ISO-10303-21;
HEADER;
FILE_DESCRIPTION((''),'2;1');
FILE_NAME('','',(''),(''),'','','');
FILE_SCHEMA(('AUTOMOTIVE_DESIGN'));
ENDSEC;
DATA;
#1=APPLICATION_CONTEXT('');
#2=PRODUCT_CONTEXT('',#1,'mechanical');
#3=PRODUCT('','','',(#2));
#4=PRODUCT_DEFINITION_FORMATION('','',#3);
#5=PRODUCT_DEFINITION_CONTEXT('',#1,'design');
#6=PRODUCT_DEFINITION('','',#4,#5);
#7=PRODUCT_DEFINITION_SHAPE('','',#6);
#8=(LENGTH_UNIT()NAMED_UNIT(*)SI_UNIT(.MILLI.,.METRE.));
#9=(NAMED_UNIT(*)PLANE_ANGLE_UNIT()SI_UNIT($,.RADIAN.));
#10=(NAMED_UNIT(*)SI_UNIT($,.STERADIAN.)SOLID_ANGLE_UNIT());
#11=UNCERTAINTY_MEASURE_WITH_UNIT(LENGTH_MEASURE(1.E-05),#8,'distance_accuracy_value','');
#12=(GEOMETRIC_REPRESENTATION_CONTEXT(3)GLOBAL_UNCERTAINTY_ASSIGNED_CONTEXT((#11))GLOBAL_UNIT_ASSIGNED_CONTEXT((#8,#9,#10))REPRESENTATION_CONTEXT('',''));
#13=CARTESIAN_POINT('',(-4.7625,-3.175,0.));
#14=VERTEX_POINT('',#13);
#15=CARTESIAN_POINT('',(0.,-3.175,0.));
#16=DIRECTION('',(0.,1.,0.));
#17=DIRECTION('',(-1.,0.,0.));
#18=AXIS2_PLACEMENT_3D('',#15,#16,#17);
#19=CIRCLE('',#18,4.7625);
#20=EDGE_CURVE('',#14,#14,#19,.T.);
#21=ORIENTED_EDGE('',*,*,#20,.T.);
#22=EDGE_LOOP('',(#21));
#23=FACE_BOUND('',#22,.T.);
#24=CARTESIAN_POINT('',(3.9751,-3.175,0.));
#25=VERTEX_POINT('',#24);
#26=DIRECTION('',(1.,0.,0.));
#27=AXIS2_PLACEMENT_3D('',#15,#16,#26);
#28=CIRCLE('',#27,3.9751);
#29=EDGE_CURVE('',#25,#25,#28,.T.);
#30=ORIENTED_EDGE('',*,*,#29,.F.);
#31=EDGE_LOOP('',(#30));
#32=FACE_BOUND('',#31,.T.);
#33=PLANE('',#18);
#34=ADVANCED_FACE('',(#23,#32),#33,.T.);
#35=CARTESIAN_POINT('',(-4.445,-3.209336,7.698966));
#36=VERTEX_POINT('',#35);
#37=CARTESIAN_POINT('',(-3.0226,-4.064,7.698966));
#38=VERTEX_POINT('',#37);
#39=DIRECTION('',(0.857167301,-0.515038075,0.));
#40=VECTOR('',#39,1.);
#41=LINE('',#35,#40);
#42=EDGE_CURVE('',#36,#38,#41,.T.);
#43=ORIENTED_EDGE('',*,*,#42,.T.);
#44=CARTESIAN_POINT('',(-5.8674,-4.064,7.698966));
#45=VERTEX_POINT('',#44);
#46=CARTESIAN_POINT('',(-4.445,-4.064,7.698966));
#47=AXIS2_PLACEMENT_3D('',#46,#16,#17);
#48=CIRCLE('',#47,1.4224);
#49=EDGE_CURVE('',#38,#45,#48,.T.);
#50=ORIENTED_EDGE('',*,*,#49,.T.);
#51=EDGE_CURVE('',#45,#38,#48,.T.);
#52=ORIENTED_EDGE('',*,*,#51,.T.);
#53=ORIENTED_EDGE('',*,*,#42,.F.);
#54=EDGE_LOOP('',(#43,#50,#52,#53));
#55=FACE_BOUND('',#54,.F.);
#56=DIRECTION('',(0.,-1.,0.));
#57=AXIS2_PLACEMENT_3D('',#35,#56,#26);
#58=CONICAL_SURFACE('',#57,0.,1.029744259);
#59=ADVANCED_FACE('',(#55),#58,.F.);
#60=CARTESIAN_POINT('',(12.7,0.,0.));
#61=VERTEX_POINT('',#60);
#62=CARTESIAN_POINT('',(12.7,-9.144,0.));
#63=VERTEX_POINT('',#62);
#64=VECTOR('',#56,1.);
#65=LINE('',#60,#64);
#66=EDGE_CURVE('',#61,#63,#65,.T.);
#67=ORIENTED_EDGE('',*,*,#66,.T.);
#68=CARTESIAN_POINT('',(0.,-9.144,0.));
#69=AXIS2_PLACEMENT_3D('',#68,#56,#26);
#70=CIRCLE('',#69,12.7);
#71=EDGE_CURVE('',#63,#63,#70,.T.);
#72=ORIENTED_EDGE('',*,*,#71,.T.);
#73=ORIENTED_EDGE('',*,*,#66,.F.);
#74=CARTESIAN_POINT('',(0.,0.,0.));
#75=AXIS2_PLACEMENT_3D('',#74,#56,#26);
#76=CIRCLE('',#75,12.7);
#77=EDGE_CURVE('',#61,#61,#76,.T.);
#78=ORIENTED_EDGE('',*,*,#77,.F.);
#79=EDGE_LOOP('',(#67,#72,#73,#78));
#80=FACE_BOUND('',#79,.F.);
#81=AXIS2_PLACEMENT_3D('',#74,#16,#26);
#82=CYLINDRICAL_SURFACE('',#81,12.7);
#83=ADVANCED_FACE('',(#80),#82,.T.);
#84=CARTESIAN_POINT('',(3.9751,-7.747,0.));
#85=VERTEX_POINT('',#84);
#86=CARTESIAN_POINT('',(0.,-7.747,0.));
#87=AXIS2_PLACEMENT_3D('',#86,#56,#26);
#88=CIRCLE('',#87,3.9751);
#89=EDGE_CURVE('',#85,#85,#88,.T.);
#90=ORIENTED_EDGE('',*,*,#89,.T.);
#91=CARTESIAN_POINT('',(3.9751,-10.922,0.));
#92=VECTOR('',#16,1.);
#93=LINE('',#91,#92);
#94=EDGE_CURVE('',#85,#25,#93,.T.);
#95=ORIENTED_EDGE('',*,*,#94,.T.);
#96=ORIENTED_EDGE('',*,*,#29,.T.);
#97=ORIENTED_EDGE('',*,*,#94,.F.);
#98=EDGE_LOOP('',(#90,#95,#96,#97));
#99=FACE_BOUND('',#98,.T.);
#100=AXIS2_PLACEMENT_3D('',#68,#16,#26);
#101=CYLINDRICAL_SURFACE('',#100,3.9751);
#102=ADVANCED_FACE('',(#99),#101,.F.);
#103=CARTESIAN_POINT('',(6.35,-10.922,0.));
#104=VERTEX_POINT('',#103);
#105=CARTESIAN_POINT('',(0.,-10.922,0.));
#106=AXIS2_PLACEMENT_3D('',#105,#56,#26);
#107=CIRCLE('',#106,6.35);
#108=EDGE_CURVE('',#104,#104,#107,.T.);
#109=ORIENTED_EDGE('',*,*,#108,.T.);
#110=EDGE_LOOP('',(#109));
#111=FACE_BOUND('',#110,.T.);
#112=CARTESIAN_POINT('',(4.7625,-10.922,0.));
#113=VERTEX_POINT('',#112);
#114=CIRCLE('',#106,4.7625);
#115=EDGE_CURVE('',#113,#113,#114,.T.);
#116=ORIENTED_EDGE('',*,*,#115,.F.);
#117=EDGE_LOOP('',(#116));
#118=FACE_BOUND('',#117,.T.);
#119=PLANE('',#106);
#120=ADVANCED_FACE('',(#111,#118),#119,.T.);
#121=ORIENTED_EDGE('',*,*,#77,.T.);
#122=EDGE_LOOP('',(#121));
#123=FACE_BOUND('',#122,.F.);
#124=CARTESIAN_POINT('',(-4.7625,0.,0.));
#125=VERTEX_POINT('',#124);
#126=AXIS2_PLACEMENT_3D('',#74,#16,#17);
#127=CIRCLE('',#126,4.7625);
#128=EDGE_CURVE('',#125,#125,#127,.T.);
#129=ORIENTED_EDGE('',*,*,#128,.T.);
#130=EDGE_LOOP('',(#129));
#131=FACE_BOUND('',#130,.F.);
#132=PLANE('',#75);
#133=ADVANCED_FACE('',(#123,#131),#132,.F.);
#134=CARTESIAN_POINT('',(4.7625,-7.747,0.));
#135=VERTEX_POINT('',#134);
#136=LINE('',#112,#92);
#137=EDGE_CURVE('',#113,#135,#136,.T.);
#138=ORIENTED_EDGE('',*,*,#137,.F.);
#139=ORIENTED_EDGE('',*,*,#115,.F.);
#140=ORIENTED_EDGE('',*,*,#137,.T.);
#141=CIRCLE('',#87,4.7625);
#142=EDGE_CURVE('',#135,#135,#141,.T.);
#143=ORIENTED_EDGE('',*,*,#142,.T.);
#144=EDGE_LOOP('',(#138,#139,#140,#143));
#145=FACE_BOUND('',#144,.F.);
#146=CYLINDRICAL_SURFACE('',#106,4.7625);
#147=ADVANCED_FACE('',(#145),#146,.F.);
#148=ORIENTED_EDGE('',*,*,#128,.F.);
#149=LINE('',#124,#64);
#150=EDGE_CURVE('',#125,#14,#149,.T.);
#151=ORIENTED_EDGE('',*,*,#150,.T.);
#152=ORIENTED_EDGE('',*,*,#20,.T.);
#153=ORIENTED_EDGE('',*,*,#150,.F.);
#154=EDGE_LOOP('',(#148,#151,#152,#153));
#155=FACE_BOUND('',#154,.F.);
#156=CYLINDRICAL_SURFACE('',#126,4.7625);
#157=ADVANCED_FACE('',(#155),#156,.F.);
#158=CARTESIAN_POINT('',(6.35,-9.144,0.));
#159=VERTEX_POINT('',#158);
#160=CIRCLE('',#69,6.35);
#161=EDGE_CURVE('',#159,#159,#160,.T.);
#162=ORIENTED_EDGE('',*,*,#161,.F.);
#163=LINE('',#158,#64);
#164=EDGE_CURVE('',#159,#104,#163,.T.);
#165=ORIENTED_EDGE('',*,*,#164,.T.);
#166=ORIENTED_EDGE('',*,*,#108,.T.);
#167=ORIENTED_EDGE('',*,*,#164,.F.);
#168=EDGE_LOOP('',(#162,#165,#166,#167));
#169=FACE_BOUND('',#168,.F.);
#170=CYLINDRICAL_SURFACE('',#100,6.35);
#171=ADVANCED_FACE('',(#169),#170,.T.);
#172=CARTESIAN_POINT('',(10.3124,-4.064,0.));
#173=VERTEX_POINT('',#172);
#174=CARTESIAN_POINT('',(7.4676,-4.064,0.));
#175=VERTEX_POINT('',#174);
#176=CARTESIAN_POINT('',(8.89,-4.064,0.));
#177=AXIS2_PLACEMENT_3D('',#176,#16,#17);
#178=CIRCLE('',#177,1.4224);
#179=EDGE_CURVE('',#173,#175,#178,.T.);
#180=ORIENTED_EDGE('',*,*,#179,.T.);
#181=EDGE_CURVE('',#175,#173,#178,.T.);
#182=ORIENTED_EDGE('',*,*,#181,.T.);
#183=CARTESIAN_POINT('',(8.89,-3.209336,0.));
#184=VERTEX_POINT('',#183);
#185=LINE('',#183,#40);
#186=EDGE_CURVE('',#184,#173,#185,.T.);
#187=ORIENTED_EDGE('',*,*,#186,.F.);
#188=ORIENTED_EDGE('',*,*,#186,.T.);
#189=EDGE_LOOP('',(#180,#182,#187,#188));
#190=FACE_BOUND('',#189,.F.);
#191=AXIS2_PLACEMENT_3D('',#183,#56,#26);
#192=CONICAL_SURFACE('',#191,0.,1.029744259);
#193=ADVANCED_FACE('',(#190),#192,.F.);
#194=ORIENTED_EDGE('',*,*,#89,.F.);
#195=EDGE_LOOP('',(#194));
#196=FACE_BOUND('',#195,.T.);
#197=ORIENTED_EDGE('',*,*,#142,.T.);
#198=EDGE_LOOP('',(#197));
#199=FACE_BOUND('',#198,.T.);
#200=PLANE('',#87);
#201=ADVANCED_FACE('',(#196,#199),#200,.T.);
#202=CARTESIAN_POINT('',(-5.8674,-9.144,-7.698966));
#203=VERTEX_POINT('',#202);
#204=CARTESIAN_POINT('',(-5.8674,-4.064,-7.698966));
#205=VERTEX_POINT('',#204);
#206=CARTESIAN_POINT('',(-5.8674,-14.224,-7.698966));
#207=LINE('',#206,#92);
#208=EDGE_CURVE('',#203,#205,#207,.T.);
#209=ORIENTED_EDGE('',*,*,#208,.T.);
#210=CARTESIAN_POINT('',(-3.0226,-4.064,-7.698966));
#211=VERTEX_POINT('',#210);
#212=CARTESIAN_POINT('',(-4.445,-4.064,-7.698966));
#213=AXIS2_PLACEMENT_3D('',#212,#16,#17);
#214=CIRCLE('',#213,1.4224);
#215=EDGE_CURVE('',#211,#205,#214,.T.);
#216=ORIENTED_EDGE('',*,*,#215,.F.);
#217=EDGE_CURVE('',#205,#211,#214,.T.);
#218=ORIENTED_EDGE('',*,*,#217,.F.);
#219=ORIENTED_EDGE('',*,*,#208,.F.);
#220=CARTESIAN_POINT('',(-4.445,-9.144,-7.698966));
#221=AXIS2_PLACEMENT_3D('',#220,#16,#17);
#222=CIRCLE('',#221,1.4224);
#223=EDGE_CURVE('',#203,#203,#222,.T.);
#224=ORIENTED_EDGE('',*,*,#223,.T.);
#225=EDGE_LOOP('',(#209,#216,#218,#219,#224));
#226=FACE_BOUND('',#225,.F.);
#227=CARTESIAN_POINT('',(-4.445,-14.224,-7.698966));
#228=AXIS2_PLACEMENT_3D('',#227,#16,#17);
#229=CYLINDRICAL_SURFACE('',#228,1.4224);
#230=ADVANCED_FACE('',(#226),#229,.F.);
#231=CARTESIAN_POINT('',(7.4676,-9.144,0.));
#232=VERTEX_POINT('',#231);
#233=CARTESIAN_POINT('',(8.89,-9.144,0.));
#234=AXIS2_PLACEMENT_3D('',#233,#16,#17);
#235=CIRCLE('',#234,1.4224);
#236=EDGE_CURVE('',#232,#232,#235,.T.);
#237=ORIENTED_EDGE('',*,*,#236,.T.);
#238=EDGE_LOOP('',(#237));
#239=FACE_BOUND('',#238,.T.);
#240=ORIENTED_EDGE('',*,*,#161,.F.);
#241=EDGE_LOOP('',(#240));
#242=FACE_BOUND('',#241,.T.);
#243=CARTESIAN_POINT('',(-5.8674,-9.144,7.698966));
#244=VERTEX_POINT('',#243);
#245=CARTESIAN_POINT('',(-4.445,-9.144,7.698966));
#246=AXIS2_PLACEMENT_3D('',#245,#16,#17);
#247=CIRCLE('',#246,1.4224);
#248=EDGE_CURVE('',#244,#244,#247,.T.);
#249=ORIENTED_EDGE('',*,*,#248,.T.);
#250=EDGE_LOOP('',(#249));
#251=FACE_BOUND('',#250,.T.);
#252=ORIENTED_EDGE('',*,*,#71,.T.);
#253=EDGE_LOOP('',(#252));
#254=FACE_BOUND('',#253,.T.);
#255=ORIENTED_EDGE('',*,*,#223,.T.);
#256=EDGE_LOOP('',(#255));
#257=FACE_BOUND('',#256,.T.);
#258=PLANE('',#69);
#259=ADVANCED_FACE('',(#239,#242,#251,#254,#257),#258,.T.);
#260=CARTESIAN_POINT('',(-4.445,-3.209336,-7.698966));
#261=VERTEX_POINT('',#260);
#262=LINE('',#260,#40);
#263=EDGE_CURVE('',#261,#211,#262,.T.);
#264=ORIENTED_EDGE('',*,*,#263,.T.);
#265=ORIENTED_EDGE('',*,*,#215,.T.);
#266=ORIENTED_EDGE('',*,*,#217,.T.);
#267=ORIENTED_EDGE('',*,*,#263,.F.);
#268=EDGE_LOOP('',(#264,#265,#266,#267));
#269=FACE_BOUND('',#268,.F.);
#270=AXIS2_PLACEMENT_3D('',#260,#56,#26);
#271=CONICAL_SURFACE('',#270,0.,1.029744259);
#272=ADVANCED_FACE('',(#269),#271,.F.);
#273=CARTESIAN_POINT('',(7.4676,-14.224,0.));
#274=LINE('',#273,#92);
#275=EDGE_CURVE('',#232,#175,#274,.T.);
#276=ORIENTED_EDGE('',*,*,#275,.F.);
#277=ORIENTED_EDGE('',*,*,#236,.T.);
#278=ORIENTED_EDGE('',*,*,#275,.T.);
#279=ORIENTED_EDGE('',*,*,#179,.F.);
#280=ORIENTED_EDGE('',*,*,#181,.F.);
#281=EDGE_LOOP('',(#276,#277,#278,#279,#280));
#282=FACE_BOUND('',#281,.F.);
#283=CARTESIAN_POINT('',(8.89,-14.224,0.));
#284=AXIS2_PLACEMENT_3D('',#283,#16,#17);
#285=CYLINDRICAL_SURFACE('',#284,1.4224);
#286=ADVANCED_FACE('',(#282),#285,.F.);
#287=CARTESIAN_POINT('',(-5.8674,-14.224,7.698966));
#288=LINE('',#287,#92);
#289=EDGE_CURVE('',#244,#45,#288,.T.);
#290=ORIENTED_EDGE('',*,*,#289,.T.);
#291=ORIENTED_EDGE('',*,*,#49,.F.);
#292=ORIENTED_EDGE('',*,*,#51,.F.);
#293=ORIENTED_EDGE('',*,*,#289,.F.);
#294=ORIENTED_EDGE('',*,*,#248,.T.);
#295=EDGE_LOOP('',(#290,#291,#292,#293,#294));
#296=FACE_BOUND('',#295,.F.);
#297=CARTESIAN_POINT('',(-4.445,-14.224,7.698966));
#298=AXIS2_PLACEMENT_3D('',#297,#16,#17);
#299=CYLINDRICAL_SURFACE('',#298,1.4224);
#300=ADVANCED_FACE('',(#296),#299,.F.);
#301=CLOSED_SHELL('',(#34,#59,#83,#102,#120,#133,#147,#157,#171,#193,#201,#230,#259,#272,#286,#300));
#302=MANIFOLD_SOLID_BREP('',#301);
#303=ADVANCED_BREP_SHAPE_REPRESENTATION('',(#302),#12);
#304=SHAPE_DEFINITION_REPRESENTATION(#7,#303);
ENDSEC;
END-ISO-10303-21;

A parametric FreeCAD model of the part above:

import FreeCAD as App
import Part
import Sketcher

V = App.Vector
Q = App.Units.Quantity

doc = App.newDocument("Part")
body = doc.addObject("PartDesign::Body", "Body")

sketch1 = body.newObject("Sketcher::SketchObject", "Sketch")
sketch1.AttachmentSupport = (doc.getObject("XZ_Plane"), [""])
sketch1.MapMode = "FlatFace"
sketch1.addGeometry([
    Part.Circle(V(0, 0, 0), V(0, 0, 1), 12.7),
    Part.Circle(V(0, 0, 0), V(0, 0, 1), 4),
], False)
sketch1.addConstraint([
    Sketcher.Constraint("Coincident", 0, 3, -1, 1),
    Sketcher.Constraint("Coincident", 1, 3, -1, 1),
    Sketcher.Constraint("Diameter", 0, Q("1 in")),
    Sketcher.Constraint("Diameter", 1, Q("0.313 in")),
])
pad1 = body.newObject("PartDesign::Pad", "Pad")
pad1.Profile = sketch1
pad1.Length = Q("0.36 in")

sketch2 = body.newObject("Sketcher::SketchObject", "Sketch001")
sketch2.AttachmentSupport = (doc.getObject("XZ_Plane"), [""])
sketch2.MapMode = "FlatFace"
sketch2.AttachmentOffset = App.Placement(V(0, 0, 0.36 * 25.4), App.Rotation())
sketch2.addGeometry([
    Part.Circle(V(0, 0, 0), V(0, 0, 1), 6.3),
    Part.Circle(V(0, 0, 0), V(0, 0, 1), 4),
], False)
sketch2.addConstraint([
    Sketcher.Constraint("Coincident", 0, 3, -1, 1),
    Sketcher.Constraint("Coincident", 1, 3, -1, 1),
    Sketcher.Constraint("Diameter", 0, Q("0.5 in")),
    Sketcher.Constraint("Diameter", 1, Q("0.313 in")),
])
pad2 = body.newObject("PartDesign::Pad", "Pad001")
pad2.Profile = sketch2
pad2.Length = Q("0.07 in")

sketch3 = body.newObject("Sketcher::SketchObject", "Sketch002")
sketch3.AttachmentSupport = (doc.getObject("XZ_Plane"), [""])
sketch3.MapMode = "FlatFace"
sketch3.AttachmentOffset = App.Placement(V(0, 0, 0.43 * 25.4), App.Rotation())
sketch3.addGeometry([
    Part.Circle(V(0, 0, 0), V(0, 0, 1), 4.8),
    Part.Circle(V(0, 0, 0), V(0, 0, 1), 4),
], False)
sketch3.addConstraint([
    Sketcher.Constraint("Coincident", 0, 3, -1, 1),
    Sketcher.Constraint("Coincident", 1, 3, -1, 1),
    Sketcher.Constraint("Diameter", 0, Q("0.375 in")),
    Sketcher.Constraint("Diameter", 1, Q("0.313 in")),
])
pocket1 = body.newObject("PartDesign::Pocket", "Pocket")
pocket1.Profile = sketch3
pocket1.Length = Q("0.125 in")

sketch4 = body.newObject("Sketcher::SketchObject", "Sketch003")
sketch4.AttachmentSupport = (doc.getObject("XZ_Plane"), [""])
sketch4.MapMode = "FlatFace"
sketch4.addGeometry([
    Part.Circle(V(0, 0, 0), V(0, 0, 1), 4.8),
    Part.Circle(V(0, 0, 0), V(0, 0, 1), 4),
], False)
sketch4.addConstraint([
    Sketcher.Constraint("Coincident", 0, 3, -1, 1),
    Sketcher.Constraint("Coincident", 1, 3, -1, 1),
    Sketcher.Constraint("Diameter", 0, Q("0.375 in")),
    Sketcher.Constraint("Diameter", 1, Q("0.313 in")),
])
pocket2 = body.newObject("PartDesign::Pocket", "Pocket001")
pocket2.Profile = sketch4
pocket2.Length = Q("0.125 in")
pocket2.Reversed = True

sketch5 = body.newObject("Sketcher::SketchObject", "Sketch004")
sketch5.AttachmentSupport = (doc.getObject("XZ_Plane"), [""])
sketch5.MapMode = "FlatFace"
sketch5.AttachmentOffset = App.Placement(V(0, 0, 0.36 * 25.4), App.Rotation())
sketch5.addGeometry([
    Part.Circle(V(8.9, 0, 0), V(0, 0, 1), 1.4),
    Part.Circle(V(-4.4, 7.7, 0), V(0, 0, 1), 1.4),
    Part.Circle(V(-4.4, -7.7, 0), V(0, 0, 1), 1.4),
], False)
sketch5.addConstraint([
    Sketcher.Constraint("Equal", 0, 1),
    Sketcher.Constraint("Equal", 1, 2),
    Sketcher.Constraint("Symmetric", 1, 3, 2, 3, -1),
    Sketcher.Constraint("PointOnObject", 0, 3, -1),
    Sketcher.Constraint("Diameter", 0, Q("0.112 in")),
    Sketcher.Constraint("DistanceX", -1, 1, 0, 3, Q("0.35 in")),
    Sketcher.Constraint("DistanceX", 1, 3, -1, 1, Q("0.175 in")),
    Sketcher.Constraint("DistanceY", 2, 3, 1, 3, Q("15.397932 mm")),
])
doc.recompute()
hole = body.newObject("PartDesign::Hole", "Hole")
hole.Profile = sketch5
hole.ThreadType = "None"
hole.Diameter = Q("0.112 in")
hole.DepthType = "Dimension"
hole.Depth = Q("0.2 in")
hole.DrillPoint = "Angled"
hole.DrillPointAngle = 118

doc.recompute()
